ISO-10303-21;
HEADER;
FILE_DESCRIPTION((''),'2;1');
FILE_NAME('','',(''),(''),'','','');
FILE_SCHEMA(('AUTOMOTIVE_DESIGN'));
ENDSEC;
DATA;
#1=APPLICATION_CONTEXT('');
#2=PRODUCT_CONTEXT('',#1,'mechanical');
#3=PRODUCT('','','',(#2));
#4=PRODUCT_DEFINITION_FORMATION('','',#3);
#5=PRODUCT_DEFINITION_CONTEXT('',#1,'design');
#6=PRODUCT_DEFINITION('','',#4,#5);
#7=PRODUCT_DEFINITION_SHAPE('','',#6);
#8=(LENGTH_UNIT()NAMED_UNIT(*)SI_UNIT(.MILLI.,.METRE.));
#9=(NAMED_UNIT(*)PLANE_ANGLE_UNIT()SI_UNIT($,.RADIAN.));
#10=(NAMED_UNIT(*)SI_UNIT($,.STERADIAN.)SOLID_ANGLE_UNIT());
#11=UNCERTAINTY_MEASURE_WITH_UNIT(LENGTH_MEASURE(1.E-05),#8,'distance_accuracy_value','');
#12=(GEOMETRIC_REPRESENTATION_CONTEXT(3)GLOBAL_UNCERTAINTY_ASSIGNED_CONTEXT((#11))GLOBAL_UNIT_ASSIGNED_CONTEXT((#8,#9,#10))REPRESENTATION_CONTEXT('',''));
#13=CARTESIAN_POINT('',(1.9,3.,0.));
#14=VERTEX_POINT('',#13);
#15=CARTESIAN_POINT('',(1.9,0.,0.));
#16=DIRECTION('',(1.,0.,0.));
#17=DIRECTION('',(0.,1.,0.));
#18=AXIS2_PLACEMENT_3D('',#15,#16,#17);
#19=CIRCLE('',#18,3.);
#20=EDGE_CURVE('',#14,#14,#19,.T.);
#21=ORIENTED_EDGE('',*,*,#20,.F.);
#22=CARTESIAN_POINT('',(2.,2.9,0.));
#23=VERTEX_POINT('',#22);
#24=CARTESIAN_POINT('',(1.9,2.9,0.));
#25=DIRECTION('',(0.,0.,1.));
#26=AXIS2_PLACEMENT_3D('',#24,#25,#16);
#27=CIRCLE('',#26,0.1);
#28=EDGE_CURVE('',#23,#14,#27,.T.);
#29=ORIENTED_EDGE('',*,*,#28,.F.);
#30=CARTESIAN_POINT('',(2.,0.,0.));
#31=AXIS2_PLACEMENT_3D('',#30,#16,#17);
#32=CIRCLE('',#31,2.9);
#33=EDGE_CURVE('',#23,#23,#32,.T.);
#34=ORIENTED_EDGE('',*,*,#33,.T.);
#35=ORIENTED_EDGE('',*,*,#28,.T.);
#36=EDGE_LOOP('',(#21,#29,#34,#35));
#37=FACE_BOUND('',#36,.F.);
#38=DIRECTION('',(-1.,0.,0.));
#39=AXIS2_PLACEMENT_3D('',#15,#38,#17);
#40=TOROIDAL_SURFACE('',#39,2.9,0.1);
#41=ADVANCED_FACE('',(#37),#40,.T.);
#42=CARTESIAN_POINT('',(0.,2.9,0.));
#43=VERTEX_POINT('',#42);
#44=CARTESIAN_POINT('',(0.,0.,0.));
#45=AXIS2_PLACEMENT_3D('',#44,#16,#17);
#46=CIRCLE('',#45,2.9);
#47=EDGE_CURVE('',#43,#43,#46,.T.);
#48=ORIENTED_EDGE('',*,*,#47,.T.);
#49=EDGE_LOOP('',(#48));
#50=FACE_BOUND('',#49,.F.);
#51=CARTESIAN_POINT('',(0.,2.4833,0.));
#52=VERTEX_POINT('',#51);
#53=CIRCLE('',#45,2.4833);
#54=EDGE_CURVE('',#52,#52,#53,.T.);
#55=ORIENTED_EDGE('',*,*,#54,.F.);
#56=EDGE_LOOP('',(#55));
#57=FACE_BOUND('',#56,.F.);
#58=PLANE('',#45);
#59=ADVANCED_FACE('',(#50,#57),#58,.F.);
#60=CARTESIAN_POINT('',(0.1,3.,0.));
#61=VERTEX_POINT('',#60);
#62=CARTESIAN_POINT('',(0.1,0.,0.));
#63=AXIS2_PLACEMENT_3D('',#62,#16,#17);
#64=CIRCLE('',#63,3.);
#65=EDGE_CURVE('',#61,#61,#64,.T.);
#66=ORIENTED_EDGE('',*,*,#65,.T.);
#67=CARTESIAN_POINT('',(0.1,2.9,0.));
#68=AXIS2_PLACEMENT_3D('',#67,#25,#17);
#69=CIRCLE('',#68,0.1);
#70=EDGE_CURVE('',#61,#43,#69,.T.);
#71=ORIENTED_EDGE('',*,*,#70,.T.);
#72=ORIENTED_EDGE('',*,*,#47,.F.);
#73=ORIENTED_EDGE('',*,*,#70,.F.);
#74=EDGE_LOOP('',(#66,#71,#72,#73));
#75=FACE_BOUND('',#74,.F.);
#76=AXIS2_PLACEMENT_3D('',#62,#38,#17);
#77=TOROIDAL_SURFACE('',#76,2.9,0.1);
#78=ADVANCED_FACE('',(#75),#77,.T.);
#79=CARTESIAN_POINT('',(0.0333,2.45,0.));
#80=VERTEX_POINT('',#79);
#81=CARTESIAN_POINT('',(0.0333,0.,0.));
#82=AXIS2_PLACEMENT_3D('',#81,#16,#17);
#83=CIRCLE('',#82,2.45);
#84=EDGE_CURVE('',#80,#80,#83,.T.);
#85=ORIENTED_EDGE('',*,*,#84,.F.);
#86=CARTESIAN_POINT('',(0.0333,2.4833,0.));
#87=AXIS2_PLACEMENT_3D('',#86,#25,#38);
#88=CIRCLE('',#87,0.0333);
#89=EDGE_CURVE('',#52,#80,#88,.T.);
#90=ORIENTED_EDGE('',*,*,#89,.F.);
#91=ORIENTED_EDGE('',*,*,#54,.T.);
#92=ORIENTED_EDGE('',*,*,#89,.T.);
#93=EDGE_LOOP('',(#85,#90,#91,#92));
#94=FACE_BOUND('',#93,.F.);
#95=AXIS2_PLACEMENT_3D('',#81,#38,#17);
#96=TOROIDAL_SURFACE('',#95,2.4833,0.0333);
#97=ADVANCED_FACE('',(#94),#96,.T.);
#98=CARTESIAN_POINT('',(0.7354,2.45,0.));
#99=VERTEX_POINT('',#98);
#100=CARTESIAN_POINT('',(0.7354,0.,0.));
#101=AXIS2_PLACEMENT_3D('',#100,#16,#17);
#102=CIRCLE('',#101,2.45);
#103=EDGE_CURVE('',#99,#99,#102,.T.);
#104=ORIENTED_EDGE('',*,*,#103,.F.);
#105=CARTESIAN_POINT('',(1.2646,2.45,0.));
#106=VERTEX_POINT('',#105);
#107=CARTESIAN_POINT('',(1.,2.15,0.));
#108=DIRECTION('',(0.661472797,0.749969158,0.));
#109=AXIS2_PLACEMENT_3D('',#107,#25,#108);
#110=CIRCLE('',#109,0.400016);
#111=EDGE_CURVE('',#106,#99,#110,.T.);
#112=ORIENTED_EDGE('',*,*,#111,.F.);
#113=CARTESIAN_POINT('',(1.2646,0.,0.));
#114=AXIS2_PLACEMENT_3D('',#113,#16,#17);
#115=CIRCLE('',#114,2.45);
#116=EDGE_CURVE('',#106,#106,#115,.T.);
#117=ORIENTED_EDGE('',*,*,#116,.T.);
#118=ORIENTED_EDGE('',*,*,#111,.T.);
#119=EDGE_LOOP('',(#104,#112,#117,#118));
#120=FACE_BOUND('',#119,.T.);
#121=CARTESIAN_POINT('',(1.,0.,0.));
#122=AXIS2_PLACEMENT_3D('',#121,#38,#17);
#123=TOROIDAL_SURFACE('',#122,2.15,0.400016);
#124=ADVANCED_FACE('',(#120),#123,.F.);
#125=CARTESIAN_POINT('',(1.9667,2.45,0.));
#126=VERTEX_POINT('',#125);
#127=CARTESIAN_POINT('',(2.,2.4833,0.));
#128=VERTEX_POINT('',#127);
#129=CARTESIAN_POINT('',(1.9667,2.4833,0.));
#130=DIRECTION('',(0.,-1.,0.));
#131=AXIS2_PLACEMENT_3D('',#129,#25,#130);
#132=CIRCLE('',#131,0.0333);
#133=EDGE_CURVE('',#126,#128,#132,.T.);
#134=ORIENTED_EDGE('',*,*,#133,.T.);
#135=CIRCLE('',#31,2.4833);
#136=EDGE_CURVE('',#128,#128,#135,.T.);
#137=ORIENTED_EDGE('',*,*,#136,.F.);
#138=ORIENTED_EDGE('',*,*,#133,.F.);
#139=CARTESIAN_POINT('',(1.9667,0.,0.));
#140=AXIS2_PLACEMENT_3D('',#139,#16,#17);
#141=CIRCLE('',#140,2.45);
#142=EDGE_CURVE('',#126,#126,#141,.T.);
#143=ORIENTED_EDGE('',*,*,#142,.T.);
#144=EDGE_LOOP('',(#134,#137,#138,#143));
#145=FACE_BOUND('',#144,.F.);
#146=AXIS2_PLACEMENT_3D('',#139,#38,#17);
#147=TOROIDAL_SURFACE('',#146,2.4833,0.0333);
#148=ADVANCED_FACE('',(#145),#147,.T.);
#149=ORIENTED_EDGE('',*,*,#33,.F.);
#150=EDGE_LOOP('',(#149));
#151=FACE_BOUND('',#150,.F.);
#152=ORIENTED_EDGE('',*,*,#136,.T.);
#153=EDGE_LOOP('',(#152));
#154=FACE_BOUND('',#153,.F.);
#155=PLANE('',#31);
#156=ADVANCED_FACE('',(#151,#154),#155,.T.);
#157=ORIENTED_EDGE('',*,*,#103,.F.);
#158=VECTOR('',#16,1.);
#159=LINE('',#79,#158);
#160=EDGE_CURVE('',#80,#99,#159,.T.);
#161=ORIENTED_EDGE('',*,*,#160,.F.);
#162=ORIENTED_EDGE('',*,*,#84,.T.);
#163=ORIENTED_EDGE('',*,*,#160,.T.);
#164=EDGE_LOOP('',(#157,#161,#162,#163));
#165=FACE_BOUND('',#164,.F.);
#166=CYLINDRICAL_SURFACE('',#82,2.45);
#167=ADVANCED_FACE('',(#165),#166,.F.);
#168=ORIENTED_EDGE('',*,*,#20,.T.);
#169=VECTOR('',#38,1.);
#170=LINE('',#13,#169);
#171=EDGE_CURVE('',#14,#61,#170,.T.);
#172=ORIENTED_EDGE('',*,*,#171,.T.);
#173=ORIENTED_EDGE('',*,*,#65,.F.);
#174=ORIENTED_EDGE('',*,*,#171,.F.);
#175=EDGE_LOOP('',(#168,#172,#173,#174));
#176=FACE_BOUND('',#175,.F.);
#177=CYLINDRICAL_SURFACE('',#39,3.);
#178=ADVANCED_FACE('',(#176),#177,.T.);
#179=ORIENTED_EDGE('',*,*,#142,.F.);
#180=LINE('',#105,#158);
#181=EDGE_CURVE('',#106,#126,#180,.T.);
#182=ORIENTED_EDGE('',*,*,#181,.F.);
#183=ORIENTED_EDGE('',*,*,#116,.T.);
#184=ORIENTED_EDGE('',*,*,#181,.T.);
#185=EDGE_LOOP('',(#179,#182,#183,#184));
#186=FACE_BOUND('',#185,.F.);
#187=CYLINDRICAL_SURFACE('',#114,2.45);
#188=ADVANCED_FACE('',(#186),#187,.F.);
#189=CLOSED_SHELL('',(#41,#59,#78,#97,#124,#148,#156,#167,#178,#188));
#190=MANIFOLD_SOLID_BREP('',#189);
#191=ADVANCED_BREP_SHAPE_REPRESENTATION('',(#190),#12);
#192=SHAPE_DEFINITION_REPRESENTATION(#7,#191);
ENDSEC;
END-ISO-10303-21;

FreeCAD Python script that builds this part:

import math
import FreeCAD as App
import Part
import Sketcher

V = App.Vector

doc = App.newDocument("Part")
params = doc.addObject("Spreadsheet::Sheet", "Params")
for row, (alias, value) in enumerate([
    ("sketch1_radius", "0.4 mm"),
    ("sketch1_radius2", "0.1 mm"),
    ("sketch1_width", "1.8 mm"),
    ("revolution_angle", "360 deg"),
], start=1):
    params.set(f"A{row}", alias)
    params.set(f"B{row}", "=" + value)
    params.setAlias(f"B{row}", alias)

body = doc.addObject("PartDesign::Body", "Body")

sketch1 = body.newObject("Sketcher::SketchObject", "Sketch")
sketch1.AttachmentSupport = (doc.getObject("XY_Plane"), [""])
sketch1.MapMode = "FlatFace"
sketch1.addGeometry([
    Part.LineSegment(V(0, 2.9, 0), V(0, 2.483, 0)),
    Part.ArcOfCircle(Part.Circle(V(0.033, 2.483, 0), V(0, 0, 1), 0.033), math.radians(180), math.radians(270)),
    Part.LineSegment(V(0.033, 2.45, 0), V(0.735, 2.45, 0)),
    Part.ArcOfCircle(Part.Circle(V(1, 2.15, 0), V(0, 0, 1), 0.4), math.radians(49), math.radians(131)),
    Part.LineSegment(V(1.265, 2.45, 0), V(1.967, 2.45, 0)),
    Part.ArcOfCircle(Part.Circle(V(1.967, 2.483, 0), V(0, 0, 1), 0.033), math.radians(-90), math.radians(0)),
    Part.LineSegment(V(2, 2.483, 0), V(2, 2.9, 0)),
    Part.ArcOfCircle(Part.Circle(V(1.9, 2.9, 0), V(0, 0, 1), 0.1), math.radians(0), math.radians(90)),
    Part.LineSegment(V(1.9, 3, 0), V(0.1, 3, 0)),
    Part.ArcOfCircle(Part.Circle(V(0.1, 2.9, 0), V(0, 0, 1), 0.1), math.radians(90), math.radians(180)),
], False)
sketch1.addConstraint([
    Sketcher.Constraint("Tangent", 0, 2, 1, 1),
    Sketcher.Constraint("Tangent", 1, 2, 2, 1),
    Sketcher.Constraint("Coincident", 2, 2, 3, 2),
    Sketcher.Constraint("Coincident", 3, 1, 4, 1),
    Sketcher.Constraint("Tangent", 4, 2, 5, 1),
    Sketcher.Constraint("Tangent", 5, 2, 6, 1),
    Sketcher.Constraint("Tangent", 6, 2, 7, 1),
    Sketcher.Constraint("Tangent", 7, 2, 8, 1),
    Sketcher.Constraint("Tangent", 8, 2, 9, 1),
    Sketcher.Constraint("Tangent", 9, 2, 0, 1),
    Sketcher.Constraint("Vertical", 0),
    Sketcher.Constraint("Horizontal", 2),
    Sketcher.Constraint("Horizontal", 4),
    Sketcher.Constraint("Vertical", 6),
    Sketcher.Constraint("Horizontal", 8),
    Sketcher.Constraint("Equal", 1, 5),
    Sketcher.Constraint("Equal", 7, 9),
    Sketcher.Constraint("PointOnObject", 0, 2, -2),
    Sketcher.Constraint("Horizontal", 1, 3, 5, 3),
    Sketcher.Constraint("Equal", 2, 4),
    Sketcher.Constraint("Radius", 3, 0.4),
    Sketcher.Constraint("Radius", 7, 0.1),
    Sketcher.Constraint("DistanceX", 8, 2, 8, 1, 1.8),
    Sketcher.Constraint("DistanceY", -1, 1, 7, 2, 3.0),
    Sketcher.Constraint("Radius", 1, 0.0333),
    Sketcher.Constraint("DistanceY", 3, 3, 1, 2, 0.3),
    Sketcher.Constraint("DistanceY", -1, 1, 3, 3, 2.15),
])
sketch1.setExpression("Constraints[20]", "Params.sketch1_radius")
sketch1.setExpression("Constraints[21]", "Params.sketch1_radius2")
sketch1.setExpression("Constraints[22]", "Params.sketch1_width")
revolution = body.newObject("PartDesign::Revolution", "Revolution")
revolution.Profile = sketch1
revolution.ReferenceAxis = (sketch1, ["H_Axis"])
revolution.setExpression("Angle", "Params.revolution_angle")

doc.recompute()
